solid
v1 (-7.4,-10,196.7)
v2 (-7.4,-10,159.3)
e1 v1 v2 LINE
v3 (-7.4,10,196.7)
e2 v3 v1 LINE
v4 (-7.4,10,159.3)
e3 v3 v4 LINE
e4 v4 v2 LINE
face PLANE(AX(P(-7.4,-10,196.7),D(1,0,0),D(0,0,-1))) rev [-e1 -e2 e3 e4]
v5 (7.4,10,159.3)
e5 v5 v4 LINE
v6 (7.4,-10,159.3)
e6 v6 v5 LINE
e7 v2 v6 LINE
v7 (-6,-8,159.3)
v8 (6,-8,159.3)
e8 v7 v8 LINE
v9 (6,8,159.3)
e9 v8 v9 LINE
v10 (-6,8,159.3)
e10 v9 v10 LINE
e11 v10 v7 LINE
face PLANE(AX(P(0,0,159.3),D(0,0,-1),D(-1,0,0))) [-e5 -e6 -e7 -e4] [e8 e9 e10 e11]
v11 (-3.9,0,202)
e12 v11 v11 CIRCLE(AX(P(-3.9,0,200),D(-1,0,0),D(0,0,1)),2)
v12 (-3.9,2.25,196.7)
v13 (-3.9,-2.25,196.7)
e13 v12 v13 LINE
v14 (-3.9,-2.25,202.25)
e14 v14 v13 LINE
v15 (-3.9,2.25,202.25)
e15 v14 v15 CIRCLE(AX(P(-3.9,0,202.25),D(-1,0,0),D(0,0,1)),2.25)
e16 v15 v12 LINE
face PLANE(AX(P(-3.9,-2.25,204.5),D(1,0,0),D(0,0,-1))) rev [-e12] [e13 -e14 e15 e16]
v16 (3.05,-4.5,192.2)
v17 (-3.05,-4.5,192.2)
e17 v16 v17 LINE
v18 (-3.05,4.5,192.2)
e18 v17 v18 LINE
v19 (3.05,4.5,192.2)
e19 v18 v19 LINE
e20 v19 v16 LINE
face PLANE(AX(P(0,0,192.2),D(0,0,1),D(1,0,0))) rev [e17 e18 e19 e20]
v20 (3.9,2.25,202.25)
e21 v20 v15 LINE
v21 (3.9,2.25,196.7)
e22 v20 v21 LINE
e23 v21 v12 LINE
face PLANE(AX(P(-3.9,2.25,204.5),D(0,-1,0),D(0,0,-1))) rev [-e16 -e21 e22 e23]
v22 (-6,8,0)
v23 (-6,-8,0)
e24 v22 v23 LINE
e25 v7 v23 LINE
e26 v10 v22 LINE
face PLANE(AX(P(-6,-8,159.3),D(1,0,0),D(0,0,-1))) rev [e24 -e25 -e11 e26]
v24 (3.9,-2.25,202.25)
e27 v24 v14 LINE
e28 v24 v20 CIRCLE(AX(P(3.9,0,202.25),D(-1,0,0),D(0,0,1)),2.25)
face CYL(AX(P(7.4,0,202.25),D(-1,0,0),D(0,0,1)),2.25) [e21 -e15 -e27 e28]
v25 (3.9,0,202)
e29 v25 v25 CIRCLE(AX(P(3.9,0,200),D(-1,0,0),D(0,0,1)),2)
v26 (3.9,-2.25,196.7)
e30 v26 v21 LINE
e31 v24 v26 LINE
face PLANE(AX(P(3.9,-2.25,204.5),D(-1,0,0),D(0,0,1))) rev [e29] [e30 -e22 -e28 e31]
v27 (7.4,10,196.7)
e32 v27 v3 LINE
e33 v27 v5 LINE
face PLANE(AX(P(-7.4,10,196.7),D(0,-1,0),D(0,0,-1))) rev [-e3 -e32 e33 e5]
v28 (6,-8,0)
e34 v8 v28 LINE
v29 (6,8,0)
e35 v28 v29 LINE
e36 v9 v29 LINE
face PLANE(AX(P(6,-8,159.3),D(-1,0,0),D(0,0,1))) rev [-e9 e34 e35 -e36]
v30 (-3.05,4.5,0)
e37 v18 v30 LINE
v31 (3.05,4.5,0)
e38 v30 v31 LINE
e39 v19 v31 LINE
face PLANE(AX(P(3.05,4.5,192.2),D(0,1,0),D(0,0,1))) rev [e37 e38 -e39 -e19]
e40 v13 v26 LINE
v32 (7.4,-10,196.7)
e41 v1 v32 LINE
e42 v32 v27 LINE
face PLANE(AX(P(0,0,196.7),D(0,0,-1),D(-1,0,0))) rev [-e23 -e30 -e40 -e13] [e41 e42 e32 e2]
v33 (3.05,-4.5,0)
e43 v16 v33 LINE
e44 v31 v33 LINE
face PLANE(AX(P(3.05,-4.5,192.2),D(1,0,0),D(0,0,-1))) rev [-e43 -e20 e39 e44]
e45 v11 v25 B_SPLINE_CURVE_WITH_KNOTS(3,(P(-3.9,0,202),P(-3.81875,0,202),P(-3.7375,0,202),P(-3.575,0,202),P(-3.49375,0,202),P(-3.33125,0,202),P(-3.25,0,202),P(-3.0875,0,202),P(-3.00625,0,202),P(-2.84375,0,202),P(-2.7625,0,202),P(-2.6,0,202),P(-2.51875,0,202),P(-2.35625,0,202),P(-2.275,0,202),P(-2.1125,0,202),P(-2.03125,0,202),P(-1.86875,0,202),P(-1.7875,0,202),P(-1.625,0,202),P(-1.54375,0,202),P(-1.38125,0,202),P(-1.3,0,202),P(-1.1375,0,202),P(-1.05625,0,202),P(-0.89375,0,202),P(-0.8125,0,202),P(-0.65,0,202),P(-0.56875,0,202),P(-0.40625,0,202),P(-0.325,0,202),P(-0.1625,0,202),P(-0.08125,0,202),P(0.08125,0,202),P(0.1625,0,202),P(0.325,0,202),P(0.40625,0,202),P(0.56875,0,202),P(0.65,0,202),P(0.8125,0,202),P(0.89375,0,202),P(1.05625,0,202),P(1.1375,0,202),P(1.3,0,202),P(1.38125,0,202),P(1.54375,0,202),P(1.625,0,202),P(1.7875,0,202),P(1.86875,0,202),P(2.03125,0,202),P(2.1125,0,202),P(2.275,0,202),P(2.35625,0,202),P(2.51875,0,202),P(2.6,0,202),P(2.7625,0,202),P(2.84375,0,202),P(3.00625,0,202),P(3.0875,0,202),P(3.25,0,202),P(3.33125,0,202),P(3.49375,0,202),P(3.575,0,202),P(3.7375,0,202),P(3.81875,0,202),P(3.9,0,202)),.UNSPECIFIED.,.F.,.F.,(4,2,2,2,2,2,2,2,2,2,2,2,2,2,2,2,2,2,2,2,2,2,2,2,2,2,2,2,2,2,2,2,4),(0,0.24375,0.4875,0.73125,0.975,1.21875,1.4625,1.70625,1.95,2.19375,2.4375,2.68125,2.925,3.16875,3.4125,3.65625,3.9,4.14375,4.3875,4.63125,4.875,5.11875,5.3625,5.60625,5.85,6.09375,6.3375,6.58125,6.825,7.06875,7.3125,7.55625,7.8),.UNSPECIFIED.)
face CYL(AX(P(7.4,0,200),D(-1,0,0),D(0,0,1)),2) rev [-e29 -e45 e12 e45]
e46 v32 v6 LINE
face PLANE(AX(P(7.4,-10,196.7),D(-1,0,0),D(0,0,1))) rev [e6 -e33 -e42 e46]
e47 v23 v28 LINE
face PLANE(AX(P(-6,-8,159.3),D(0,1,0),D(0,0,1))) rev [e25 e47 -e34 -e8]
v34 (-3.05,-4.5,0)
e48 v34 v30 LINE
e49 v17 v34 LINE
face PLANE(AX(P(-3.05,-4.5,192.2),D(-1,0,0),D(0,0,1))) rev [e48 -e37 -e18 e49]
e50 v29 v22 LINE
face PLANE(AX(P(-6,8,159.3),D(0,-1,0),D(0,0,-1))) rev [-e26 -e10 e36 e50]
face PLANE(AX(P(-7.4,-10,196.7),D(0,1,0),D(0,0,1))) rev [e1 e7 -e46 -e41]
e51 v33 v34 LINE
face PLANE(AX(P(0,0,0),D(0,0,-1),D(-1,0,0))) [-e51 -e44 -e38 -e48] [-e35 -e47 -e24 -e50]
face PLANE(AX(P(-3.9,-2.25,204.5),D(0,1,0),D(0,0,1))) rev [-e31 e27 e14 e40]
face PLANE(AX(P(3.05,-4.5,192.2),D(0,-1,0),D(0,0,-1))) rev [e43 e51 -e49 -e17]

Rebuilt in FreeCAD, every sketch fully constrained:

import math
import FreeCAD as App
import Part
import Sketcher
from FreeCAD import Vector


def add_polygon(sketch, points):
    """Adds a closed chain of lines whose ends are joined by coincident constraints."""
    first, n = sketch.GeometryCount, len(points)
    for a, b in zip(points, points[1:] + points[:1]):
        sketch.addGeometry(Part.LineSegment(App.Vector(*a, 0), App.Vector(*b, 0)), False)
    for i in range(n):
        sketch.addConstraint(Sketcher.Constraint("Coincident", first + i, 2, first + (i + 1) % n, 1))

doc = App.newDocument("Part")
body = doc.addObject("PartDesign::Body", "Body")

sketch1 = body.newObject("Sketcher::SketchObject", "Sketch")
sketch1.AttachmentSupport = (doc.getObject("XY_Plane"), [""])
sketch1.MapMode = "FlatFace"
add_polygon(sketch1, [(-6, 8), (-6, -8), (6, -8), (6, 8)])
sketch1.addConstraint([
    Sketcher.Constraint("Vertical", 0),
    Sketcher.Constraint("Horizontal", 1),
    Sketcher.Constraint("Vertical", 2),
    Sketcher.Constraint("Horizontal", 3),
    Sketcher.Constraint("Symmetric", 0, 2, 2, 2, -1, 1),
    Sketcher.Constraint("DistanceX", 1, 1, 1, 2, 12.0),
    Sketcher.Constraint("DistanceY", 0, 2, 0, 1, 16.0),
])
pad1 = body.newObject("PartDesign::Pad", "Pad")
pad1.Profile = sketch1
pad1.Length = 159.3

sketch2 = body.newObject("Sketcher::SketchObject", "Sketch001")
sketch2.AttachmentSupport = (doc.getObject("XY_Plane"), [""])
sketch2.MapMode = "FlatFace"
sketch2.AttachmentOffset = App.Placement(Vector(0, 0, 159.3), App.Rotation())
add_polygon(sketch2, [(-7.4, 10), (-7.4, -10), (7.4, -10), (7.4, 10)])
sketch2.addConstraint([
    Sketcher.Constraint("Vertical", 0),
    Sketcher.Constraint("Horizontal", 1),
    Sketcher.Constraint("Vertical", 2),
    Sketcher.Constraint("Horizontal", 3),
    Sketcher.Constraint("Symmetric", 0, 2, 2, 2, -1, 1),
    Sketcher.Constraint("DistanceY", 0, 2, 0, 1, 20.0),
    Sketcher.Constraint("DistanceX", 1, 1, 1, 2, 14.8),
])
pad2 = body.newObject("PartDesign::Pad", "Pad001")
pad2.Profile = sketch2
pad2.Length = 37.4

sketch3 = body.newObject("Sketcher::SketchObject", "Sketch002")
sketch3.AttachmentSupport = (doc.getObject("XY_Plane"), [""])
sketch3.MapMode = "FlatFace"
sketch3.AttachmentOffset = App.Placement(Vector(0, 0, 196.7), App.Rotation())
add_polygon(sketch3, [(-3.9, 2.25), (-3.9, -2.25), (3.9, -2.25), (3.9, 2.25)])
sketch3.addConstraint([
    Sketcher.Constraint("Vertical", 0),
    Sketcher.Constraint("Horizontal", 1),
    Sketcher.Constraint("Vertical", 2),
    Sketcher.Constraint("Horizontal", 3),
    Sketcher.Constraint("Symmetric", 0, 2, 2, 2, -1, 1),
    Sketcher.Constraint("DistanceX", 1, 1, 1, 2, 7.8),
    Sketcher.Constraint("DistanceY", 0, 2, 0, 1, 4.5),
])
pad3 = body.newObject("PartDesign::Pad", "Pad002")
pad3.Profile = sketch3
pad3.Length = 7.8

sketch4 = body.newObject("Sketcher::SketchObject", "Sketch003")
sketch4.AttachmentSupport = (doc.getObject("YZ_Plane"), [""])
sketch4.MapMode = "FlatFace"
sketch4.AttachmentOffset = App.Placement(Vector(0, 0, -3.9), App.Rotation())
sketch4.addGeometry([
    Part.Circle(Vector(0, 200, 0), Vector(0, 0, 1), 2),
    Part.LineSegment(Vector(-2.25, 202.25, 0), Vector(-2.25, 204.5, 0)),
    Part.LineSegment(Vector(-2.25, 204.5, 0), Vector(0, 204.5, 0)),
    Part.ArcOfCircle(Part.Circle(Vector(0, 202.25, 0), Vector(0, 0, 1), 2.25), math.radians(90.000001), math.radians(180)),
    Part.ArcOfCircle(Part.Circle(Vector(0, 202.25, 0), Vector(0, 0, 1), 2.25), math.radians(0), math.radians(90.000001)),
    Part.LineSegment(Vector(0, 204.5, 0), Vector(2.25, 204.5, 0)),
    Part.LineSegment(Vector(2.25, 204.5, 0), Vector(2.25, 202.25, 0)),
], False)
sketch4.addConstraint([
    Sketcher.Constraint("Coincident", 1, 2, 2, 1),
    Sketcher.Constraint("Tangent", 2, 2, 3, 1),
    Sketcher.Constraint("Tangent", 3, 2, 1, 1),
    Sketcher.Constraint("Tangent", 4, 2, 5, 1),
    Sketcher.Constraint("Coincident", 5, 2, 6, 1),
    Sketcher.Constraint("Tangent", 6, 2, 4, 1),
    Sketcher.Constraint("Vertical", 1),
    Sketcher.Constraint("Horizontal", 2),
    Sketcher.Constraint("Horizontal", 5),
    Sketcher.Constraint("Vertical", 6),
    Sketcher.Constraint("Coincident", 4, 3, 3, 3),
    Sketcher.Constraint("Equal", 3, 4),
    Sketcher.Constraint("PointOnObject", 0, 3, -2),
    Sketcher.Constraint("PointOnObject", 3, 3, -2),
    Sketcher.Constraint("Diameter", 0, 4.0),
    Sketcher.Constraint("Radius", 3, 2.25),
    Sketcher.Constraint("DistanceY", -1, 1, 0, 3, 200.0),
    Sketcher.Constraint("DistanceY", -1, 1, 1, 2, 204.5),
])
pocket1 = body.newObject("PartDesign::Pocket", "Pocket")
pocket1.Profile = sketch4
pocket1.Type = "ThroughAll"
pocket1.Reversed = True

sketch5 = body.newObject("Sketcher::SketchObject", "Sketch004")
sketch5.AttachmentSupport = (doc.getObject("XY_Plane"), [""])
sketch5.MapMode = "FlatFace"
add_polygon(sketch5, [(3.05, 4.5), (3.05, -4.5), (-3.05, -4.5), (-3.05, 4.5)])
sketch5.addConstraint([
    Sketcher.Constraint("Vertical", 0),
    Sketcher.Constraint("Horizontal", 1),
    Sketcher.Constraint("Vertical", 2),
    Sketcher.Constraint("Horizontal", 3),
    Sketcher.Constraint("Symmetric", 0, 2, 2, 2, -1, 1),
    Sketcher.Constraint("DistanceY", 0, 2, 0, 1, 9.0),
    Sketcher.Constraint("DistanceX", 1, 2, 1, 1, 6.1),
])
pocket2 = body.newObject("PartDesign::Pocket", "Pocket001")
pocket2.Profile = sketch5
pocket2.Length = 192.2
pocket2.Reversed = True

doc.recompute()
